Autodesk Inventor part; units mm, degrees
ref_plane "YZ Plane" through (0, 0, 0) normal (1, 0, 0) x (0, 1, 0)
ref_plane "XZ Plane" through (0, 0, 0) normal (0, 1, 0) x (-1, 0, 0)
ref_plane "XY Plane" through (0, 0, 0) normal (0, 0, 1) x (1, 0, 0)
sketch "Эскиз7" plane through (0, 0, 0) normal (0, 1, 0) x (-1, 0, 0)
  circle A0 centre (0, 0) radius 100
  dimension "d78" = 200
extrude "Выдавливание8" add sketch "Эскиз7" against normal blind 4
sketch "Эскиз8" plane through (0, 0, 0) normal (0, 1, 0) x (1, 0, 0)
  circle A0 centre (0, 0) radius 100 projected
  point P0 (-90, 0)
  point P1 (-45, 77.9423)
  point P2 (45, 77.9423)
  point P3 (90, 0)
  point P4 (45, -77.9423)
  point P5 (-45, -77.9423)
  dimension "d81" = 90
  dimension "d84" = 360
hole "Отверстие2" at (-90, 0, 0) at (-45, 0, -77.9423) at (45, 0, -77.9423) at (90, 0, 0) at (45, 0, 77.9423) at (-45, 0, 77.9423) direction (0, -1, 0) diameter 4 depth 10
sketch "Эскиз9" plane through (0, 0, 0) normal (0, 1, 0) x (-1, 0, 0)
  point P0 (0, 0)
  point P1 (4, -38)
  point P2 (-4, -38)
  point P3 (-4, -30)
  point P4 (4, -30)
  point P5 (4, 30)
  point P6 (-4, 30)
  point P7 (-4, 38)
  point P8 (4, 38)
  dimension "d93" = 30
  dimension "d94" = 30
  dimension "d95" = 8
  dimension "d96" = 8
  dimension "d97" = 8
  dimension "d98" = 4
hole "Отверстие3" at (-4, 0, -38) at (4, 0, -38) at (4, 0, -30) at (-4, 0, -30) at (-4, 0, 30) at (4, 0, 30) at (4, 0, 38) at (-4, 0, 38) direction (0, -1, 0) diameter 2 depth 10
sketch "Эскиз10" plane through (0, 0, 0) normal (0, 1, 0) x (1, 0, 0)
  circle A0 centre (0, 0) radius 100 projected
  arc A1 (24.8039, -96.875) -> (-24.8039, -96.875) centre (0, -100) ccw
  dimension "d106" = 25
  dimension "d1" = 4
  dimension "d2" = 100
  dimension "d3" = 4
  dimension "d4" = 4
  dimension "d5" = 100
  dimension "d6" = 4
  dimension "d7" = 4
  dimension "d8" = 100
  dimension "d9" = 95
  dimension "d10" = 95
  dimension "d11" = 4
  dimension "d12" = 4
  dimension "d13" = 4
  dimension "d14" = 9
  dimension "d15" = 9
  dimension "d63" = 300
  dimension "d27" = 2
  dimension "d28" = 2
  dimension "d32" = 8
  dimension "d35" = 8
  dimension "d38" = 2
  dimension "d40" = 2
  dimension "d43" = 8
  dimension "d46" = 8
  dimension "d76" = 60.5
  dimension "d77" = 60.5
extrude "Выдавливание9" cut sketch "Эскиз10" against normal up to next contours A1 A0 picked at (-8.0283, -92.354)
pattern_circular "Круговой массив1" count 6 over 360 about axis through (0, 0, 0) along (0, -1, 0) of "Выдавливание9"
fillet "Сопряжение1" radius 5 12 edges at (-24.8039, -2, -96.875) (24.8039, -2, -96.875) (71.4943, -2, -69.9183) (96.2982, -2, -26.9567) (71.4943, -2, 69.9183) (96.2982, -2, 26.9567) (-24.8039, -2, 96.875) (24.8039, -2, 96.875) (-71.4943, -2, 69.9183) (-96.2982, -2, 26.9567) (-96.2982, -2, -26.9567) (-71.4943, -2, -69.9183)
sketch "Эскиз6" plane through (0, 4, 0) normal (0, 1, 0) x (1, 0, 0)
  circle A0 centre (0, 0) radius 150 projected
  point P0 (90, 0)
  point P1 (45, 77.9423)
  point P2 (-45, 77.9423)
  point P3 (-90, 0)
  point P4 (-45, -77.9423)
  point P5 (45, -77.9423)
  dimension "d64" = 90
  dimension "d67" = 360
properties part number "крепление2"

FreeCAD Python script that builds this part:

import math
import FreeCAD as App
import Part
import Sketcher

V = App.Vector
Q = App.Units.Quantity


def edges_at(feature, points):
    """Names of the edges that pass closest to the given points."""
    edges = feature.Shape.Edges
    near = lambda p: min(range(len(edges)), key=lambda i: edges[i].distToShape(Part.Vertex(*p))[0])
    return sorted({f"Edge{near(p) + 1}" for p in points})

doc = App.newDocument("Part")
body = doc.addObject("PartDesign::Body", "Body")

# Sketch on XZ plane
sketch1 = body.newObject("Sketcher::SketchObject", "Sketch")
sketch1.AttachmentSupport = (doc.getObject("XZ_Plane"), [""])
sketch1.MapMode = "FlatFace"
sketch1.addGeometry(Part.Circle(V(0, 0, 0), V(0, 0, 1), 100), False)
sketch1.addConstraint(Sketcher.Constraint("Coincident", 0, 3, -1, 1))
sketch1.addConstraint(Sketcher.Constraint("Diameter", 0, Q("200 mm")))
pad1 = body.newObject("PartDesign::Pad", "Pad")
pad1.Profile = sketch1
pad1.Length = 4

# Sketch on XZ plane
sketch2 = body.newObject("Sketcher::SketchObject", "Sketch001")
sketch2.AttachmentSupport = (doc.getObject("XZ_Plane"), [""])
sketch2.MapMode = "FlatFace"
sketch2.addGeometry(Part.Circle(V(-90, 0, 0), V(0, 0, 1), 2), False)
sketch2.addGeometry(Part.Circle(V(-45, -77.9423, 0), V(0, 0, 1), 2), False)
sketch2.addGeometry(Part.Circle(V(45, -77.9423, 0), V(0, 0, 1), 2), False)
sketch2.addGeometry(Part.Circle(V(90, 0, 0), V(0, 0, 1), 2), False)
sketch2.addGeometry(Part.Circle(V(45, 77.9423, 0), V(0, 0, 1), 2), False)
sketch2.addGeometry(Part.Circle(V(-45, 77.9423, 0), V(0, 0, 1), 2), False)
sketch2.addConstraint(Sketcher.Constraint("Equal", 0, 1))
sketch2.addConstraint(Sketcher.Constraint("Equal", 1, 2))
sketch2.addConstraint(Sketcher.Constraint("Equal", 2, 3))
sketch2.addConstraint(Sketcher.Constraint("Equal", 3, 4))
sketch2.addConstraint(Sketcher.Constraint("Equal", 4, 5))
sketch2.addConstraint(Sketcher.Constraint("Symmetric", 0, 3, 3, 3, -1, 1))
sketch2.addConstraint(Sketcher.Constraint("Symmetric", 1, 3, 4, 3, -1, 1))
sketch2.addConstraint(Sketcher.Constraint("Symmetric", 2, 3, 5, 3, -1, 1))
sketch2.addConstraint(Sketcher.Constraint("Symmetric", 1, 3, 2, 3, -2))
sketch2.addConstraint(Sketcher.Constraint("PointOnObject", 0, 3, -1))
sketch2.addConstraint(Sketcher.Constraint("Diameter", 0, Q("4 mm")))
sketch2.addConstraint(Sketcher.Constraint("DistanceX", 0, 3, -1, 1, Q("90 mm")))
sketch2.addConstraint(Sketcher.Constraint("DistanceX", 1, 3, -1, 1, Q("45 mm")))
sketch2.addConstraint(Sketcher.Constraint("DistanceY", 1, 3, -1, 1, Q("77.9423 mm")))
doc.recompute()
hole = body.newObject("PartDesign::Hole", "Hole")
hole.Profile = sketch2
hole.ThreadType = "None"
hole.Diameter = 4
hole.DepthType = "Dimension"
hole.Depth = 10
hole.DrillPoint = "Flat"
hole.Reversed = True

# Sketch on XZ plane
sketch3 = body.newObject("Sketcher::SketchObject", "Sketch002")
sketch3.AttachmentSupport = (doc.getObject("XZ_Plane"), [""])
sketch3.MapMode = "FlatFace"
sketch3.addGeometry(Part.Circle(V(-4, -38, 0), V(0, 0, 1), 1), False)
sketch3.addGeometry(Part.Circle(V(4, -38, 0), V(0, 0, 1), 1), False)
sketch3.addGeometry(Part.Circle(V(4, -30, 0), V(0, 0, 1), 1), False)
sketch3.addGeometry(Part.Circle(V(-4, -30, 0), V(0, 0, 1), 1), False)
sketch3.addGeometry(Part.Circle(V(-4, 30, 0), V(0, 0, 1), 1), False)
sketch3.addGeometry(Part.Circle(V(4, 30, 0), V(0, 0, 1), 1), False)
sketch3.addGeometry(Part.Circle(V(4, 38, 0), V(0, 0, 1), 1), False)
sketch3.addGeometry(Part.Circle(V(-4, 38, 0), V(0, 0, 1), 1), False)
sketch3.addConstraint(Sketcher.Constraint("Equal", 0, 1))
sketch3.addConstraint(Sketcher.Constraint("Equal", 1, 2))
sketch3.addConstraint(Sketcher.Constraint("Equal", 2, 3))
sketch3.addConstraint(Sketcher.Constraint("Equal", 3, 4))
sketch3.addConstraint(Sketcher.Constraint("Equal", 4, 5))
sketch3.addConstraint(Sketcher.Constraint("Equal", 5, 6))
sketch3.addConstraint(Sketcher.Constraint("Equal", 6, 7))
sketch3.addConstraint(Sketcher.Constraint("Symmetric", 2, 3, 4, 3, -1, 1))
sketch3.addConstraint(Sketcher.Constraint("Symmetric", 3, 3, 5, 3, -1, 1))
sketch3.addConstraint(Sketcher.Constraint("Symmetric", 0, 3, 6, 3, -1, 1))
sketch3.addConstraint(Sketcher.Constraint("Symmetric", 1, 3, 7, 3, -1, 1))
sketch3.addConstraint(Sketcher.Constraint("Symmetric", 0, 3, 1, 3, -2))
sketch3.addConstraint(Sketcher.Constraint("Symmetric", 2, 3, 3, 3, -2))
sketch3.addConstraint(Sketcher.Constraint("Vertical", 1, 3, 2, 3))
sketch3.addConstraint(Sketcher.Constraint("Diameter", 0, Q("2 mm")))
sketch3.addConstraint(Sketcher.Constraint("DistanceX", 0, 3, -1, 1, Q("4 mm")))
sketch3.addConstraint(Sketcher.Constraint("DistanceY", 0, 3, -1, 1, Q("38 mm")))
sketch3.addConstraint(Sketcher.Constraint("DistanceY", 2, 3, -1, 1, Q("30 mm")))
doc.recompute()
hole2 = body.newObject("PartDesign::Hole", "Hole001")
hole2.Profile = sketch3
hole2.ThreadType = "None"
hole2.Diameter = 2
hole2.DepthType = "Dimension"
hole2.Depth = 10
hole2.DrillPoint = "Flat"
hole2.Reversed = True

# Sketch on XZ plane
sketch4 = body.newObject("Sketcher::SketchObject", "Sketch003")
sketch4.AttachmentSupport = (doc.getObject("XZ_Plane"), [""])
sketch4.MapMode = "FlatFace"
sketch4.addGeometry(Part.ArcOfCircle(Part.Circle(V(0, 100, 0), V(0, 0, 1), 24.999982), math.radians(-172.819239), math.radians(-7.180761)), False)
sketch4.addGeometry(Part.ArcOfCircle(Part.Circle(V(0, 0, 0), V(0, 0, 1), 100), math.radians(75.638499), math.radians(104.361501)), False)
sketch4.addConstraint(Sketcher.Constraint("Coincident", 0, 1, 1, 2))
sketch4.addConstraint(Sketcher.Constraint("Coincident", 1, 1, 0, 2))
sketch4.addConstraint(Sketcher.Constraint("Coincident", 1, 3, -1, 1))
sketch4.addConstraint(Sketcher.Constraint("PointOnObject", 0, 3, -2))
sketch4.addConstraint(Sketcher.Constraint("Radius", 0, Q("25 mm")))
sketch4.addConstraint(Sketcher.Constraint("Radius", 1, Q("100 mm")))
sketch4.addConstraint(Sketcher.Constraint("DistanceY", -1, 1, 0, 3, Q("100 mm")))
pocket1 = body.newObject("PartDesign::Pocket", "Pocket")
pocket1.Profile = sketch4
pocket1.Type = "UpToFirst"
pocket1.Reversed = True
doc.recompute()

polarpattern = body.newObject("PartDesign::PolarPattern", "PolarPattern")
polarpattern.Originals = [pocket1]
polarpattern.Axis = (doc.getObject("Y_Axis"), [""])
polarpattern.Angle = 360
polarpattern.Occurrences = 6
body.Tip = polarpattern
doc.recompute()

fillet = body.newObject("PartDesign::Fillet", "Fillet")
fillet.Base = (polarpattern, edges_at(polarpattern, [
    (-24.804, -2, -96.875),
    (24.804, -2, -96.875),
    (71.494, -2, -69.918),
    (96.298, -2, -26.957),
    (71.494, -2, 69.918),
    (96.298, -2, 26.957),
    (-24.804, -2, 96.875),
    (24.804, -2, 96.875),
    (-71.494, -2, 69.918),
    (-96.298, -2, 26.957),
    (-96.298, -2, -26.957),
    (-71.494, -2, -69.918),
]))
fillet.Radius = 5

doc.recompute()
